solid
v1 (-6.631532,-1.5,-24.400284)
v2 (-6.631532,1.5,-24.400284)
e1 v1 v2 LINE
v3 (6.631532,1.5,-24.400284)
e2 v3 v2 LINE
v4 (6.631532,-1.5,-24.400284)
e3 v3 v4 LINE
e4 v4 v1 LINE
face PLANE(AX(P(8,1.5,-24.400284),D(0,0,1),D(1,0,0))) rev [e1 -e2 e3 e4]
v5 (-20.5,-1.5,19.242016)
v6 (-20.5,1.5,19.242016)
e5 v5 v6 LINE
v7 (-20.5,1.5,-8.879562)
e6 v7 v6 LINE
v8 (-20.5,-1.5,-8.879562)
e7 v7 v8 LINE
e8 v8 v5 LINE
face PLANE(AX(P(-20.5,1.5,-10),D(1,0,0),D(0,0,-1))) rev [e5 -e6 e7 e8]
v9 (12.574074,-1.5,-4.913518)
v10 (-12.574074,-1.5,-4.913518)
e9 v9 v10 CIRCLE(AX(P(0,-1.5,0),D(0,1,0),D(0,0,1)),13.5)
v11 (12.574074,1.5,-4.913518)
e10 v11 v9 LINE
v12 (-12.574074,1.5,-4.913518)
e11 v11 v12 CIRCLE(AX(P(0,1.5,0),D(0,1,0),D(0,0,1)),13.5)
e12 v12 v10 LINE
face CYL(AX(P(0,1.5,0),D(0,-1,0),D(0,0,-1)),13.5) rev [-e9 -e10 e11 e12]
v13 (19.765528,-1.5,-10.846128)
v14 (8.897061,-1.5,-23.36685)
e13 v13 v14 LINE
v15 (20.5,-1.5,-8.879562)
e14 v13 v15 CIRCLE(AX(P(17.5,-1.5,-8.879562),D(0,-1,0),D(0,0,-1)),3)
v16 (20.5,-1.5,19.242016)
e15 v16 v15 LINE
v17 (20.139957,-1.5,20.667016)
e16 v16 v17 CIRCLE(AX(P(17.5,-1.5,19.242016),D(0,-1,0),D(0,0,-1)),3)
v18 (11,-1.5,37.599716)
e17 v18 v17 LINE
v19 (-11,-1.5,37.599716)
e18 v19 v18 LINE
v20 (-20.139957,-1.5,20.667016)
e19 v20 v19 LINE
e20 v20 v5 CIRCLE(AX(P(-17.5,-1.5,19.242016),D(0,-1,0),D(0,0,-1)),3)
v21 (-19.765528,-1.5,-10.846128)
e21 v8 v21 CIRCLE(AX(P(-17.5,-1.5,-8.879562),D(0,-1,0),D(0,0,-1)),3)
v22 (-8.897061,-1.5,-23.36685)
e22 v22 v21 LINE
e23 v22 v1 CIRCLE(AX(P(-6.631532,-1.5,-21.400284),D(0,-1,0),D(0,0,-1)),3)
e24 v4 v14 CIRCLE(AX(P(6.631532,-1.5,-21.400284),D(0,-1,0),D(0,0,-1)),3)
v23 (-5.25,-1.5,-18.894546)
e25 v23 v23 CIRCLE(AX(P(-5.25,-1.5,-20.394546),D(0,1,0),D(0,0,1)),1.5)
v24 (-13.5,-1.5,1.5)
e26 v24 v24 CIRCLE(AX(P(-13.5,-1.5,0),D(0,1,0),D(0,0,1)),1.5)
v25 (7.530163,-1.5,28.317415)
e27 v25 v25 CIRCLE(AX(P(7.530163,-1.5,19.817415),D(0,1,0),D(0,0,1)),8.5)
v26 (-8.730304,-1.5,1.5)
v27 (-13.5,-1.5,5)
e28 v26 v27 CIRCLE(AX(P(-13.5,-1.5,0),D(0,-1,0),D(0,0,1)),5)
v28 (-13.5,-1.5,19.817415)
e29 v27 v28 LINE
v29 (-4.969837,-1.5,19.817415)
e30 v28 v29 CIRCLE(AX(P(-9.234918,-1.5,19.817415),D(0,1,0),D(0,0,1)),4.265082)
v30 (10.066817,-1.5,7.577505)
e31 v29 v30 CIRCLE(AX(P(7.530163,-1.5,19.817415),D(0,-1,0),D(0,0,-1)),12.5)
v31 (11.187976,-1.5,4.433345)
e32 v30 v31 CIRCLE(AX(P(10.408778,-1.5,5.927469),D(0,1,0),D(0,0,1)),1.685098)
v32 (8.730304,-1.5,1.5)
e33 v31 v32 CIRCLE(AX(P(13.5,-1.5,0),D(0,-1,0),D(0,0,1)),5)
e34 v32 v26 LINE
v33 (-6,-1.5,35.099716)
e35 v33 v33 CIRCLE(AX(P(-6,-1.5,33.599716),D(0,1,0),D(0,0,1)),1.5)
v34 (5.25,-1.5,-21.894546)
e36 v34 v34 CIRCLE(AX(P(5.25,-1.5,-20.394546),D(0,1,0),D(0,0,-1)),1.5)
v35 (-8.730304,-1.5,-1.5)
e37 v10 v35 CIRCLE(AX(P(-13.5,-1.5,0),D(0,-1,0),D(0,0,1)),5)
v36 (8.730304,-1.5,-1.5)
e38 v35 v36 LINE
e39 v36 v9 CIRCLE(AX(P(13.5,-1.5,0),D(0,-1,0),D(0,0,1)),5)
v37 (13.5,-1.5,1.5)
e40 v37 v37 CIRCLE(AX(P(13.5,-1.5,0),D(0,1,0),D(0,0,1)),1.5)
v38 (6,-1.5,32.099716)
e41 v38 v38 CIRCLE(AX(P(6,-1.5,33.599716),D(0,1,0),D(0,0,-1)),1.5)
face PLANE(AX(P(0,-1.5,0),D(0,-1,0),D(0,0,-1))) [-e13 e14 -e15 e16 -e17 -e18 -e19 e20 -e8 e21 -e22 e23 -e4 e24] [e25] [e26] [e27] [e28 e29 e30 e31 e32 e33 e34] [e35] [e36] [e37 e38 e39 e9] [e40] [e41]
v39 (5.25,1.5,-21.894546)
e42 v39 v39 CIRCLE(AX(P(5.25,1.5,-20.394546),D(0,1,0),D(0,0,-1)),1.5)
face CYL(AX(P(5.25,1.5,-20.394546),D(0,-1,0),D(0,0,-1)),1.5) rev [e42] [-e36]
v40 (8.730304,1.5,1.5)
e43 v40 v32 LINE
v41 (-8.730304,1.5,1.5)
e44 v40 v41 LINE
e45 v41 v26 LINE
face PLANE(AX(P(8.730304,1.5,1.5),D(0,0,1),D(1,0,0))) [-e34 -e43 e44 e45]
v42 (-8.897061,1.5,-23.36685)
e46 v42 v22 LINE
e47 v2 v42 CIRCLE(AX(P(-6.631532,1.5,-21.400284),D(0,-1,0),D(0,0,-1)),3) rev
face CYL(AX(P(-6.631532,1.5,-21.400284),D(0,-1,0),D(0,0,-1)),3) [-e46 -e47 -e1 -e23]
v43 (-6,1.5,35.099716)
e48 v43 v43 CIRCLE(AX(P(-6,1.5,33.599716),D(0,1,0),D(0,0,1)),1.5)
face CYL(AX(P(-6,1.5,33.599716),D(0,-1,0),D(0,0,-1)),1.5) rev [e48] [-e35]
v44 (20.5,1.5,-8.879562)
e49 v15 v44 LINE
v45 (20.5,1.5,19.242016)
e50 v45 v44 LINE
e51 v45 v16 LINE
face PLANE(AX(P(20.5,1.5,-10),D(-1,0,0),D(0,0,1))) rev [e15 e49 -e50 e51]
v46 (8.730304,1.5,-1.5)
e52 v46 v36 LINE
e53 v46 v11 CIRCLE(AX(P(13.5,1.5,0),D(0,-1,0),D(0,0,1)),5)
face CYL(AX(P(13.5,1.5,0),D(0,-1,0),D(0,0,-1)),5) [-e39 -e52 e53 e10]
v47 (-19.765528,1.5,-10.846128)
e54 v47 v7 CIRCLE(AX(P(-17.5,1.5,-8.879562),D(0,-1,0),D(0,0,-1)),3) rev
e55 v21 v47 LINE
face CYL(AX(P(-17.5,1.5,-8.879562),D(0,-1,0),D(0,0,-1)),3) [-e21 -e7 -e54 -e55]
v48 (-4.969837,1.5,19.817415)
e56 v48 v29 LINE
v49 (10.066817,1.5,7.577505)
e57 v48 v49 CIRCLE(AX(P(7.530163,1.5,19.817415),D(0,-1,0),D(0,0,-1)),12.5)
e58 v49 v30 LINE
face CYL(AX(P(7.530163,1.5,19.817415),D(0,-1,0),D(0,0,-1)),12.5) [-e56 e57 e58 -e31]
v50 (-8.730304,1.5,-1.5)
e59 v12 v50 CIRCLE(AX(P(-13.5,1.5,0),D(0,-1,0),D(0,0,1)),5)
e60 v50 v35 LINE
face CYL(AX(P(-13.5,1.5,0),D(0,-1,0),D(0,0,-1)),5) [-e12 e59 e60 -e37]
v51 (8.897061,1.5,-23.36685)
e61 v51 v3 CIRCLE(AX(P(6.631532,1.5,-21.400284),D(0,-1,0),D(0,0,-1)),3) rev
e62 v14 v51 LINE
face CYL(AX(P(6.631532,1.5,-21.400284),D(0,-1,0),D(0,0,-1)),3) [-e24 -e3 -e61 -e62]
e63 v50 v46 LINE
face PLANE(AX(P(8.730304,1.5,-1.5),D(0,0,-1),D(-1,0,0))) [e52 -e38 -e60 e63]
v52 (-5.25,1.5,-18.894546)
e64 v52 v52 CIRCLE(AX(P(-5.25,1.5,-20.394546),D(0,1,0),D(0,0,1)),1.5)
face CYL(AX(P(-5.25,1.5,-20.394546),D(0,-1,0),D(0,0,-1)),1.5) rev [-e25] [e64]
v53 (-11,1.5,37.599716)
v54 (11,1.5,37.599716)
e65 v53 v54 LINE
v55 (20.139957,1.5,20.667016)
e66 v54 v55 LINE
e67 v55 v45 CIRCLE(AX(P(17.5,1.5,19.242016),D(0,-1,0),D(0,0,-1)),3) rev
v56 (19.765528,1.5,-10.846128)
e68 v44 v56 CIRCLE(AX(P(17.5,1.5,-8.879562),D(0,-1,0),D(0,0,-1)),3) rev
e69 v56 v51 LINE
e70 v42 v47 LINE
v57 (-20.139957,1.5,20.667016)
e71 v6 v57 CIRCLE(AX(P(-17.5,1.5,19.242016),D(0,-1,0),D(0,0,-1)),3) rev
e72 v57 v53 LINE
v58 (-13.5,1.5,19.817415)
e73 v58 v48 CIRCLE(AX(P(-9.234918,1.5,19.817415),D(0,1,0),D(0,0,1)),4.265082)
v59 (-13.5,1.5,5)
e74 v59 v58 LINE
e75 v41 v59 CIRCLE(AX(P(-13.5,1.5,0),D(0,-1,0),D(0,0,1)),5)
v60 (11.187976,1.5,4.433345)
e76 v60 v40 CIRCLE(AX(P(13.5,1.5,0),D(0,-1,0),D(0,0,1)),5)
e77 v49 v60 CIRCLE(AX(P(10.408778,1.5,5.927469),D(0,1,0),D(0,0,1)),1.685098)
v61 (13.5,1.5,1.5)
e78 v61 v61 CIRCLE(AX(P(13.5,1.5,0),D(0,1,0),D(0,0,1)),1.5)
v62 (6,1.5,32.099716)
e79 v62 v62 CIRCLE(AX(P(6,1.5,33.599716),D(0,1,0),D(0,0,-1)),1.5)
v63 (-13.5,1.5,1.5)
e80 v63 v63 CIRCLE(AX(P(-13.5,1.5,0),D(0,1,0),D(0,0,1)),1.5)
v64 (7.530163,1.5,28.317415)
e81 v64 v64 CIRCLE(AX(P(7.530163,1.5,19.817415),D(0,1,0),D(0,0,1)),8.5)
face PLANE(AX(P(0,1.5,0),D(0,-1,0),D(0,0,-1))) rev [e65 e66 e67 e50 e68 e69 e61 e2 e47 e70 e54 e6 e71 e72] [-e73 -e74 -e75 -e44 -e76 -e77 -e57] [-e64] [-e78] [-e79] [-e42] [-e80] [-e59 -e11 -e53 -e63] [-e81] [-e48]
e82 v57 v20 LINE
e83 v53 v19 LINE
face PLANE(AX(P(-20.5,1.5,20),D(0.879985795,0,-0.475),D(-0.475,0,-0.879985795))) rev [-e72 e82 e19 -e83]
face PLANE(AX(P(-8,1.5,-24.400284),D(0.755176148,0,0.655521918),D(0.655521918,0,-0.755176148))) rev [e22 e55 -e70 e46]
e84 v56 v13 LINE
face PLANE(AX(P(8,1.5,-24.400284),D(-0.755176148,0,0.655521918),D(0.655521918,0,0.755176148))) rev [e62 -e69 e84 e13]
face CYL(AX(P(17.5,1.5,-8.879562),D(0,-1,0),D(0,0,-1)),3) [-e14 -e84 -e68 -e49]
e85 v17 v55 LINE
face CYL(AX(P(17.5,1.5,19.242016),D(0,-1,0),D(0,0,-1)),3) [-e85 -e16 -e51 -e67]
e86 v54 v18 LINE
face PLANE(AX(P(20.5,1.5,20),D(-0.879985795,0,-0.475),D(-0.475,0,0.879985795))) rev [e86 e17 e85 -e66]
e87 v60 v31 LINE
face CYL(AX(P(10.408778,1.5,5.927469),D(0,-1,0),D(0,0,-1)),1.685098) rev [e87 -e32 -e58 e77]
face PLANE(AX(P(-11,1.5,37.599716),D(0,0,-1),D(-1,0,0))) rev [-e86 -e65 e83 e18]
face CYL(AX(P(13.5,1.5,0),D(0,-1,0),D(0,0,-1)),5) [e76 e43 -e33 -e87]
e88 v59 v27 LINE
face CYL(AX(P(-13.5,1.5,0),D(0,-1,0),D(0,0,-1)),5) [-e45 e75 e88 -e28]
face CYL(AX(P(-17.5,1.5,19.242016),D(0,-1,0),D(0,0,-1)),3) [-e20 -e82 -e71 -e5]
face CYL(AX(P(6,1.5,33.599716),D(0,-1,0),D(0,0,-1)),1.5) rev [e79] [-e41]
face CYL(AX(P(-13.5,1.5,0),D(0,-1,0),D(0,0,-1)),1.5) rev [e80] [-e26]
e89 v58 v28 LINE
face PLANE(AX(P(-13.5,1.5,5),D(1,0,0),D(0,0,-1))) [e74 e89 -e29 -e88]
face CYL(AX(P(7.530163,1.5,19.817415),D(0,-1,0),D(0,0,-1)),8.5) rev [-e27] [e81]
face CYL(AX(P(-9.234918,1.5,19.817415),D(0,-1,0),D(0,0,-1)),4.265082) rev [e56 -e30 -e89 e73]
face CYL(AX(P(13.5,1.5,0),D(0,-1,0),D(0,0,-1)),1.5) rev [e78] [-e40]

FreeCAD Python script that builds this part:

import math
import FreeCAD as App
import Part
import Sketcher
from FreeCAD import Vector


def edges_at(feature, points):
    """Names of the edges that pass closest to the given points."""
    edges = feature.Shape.Edges
    near = lambda p: min(range(len(edges)), key=lambda i: edges[i].distToShape(Part.Vertex(*p))[0])
    return sorted({f"Edge{near(p) + 1}" for p in points})

doc = App.newDocument("Part")
body = doc.addObject("PartDesign::Body", "Body")

sketch1 = doc.addObject("Sketcher::SketchObject", "Sketch")
body.addObject(sketch1)
sketch1.AttachmentSupport = (doc.XZ_Plane, [""])
sketch1.MapMode = "FlatFace"
sketch1.addGeometry([
    Part.LineSegment(Vector(8, -24.4, 0), Vector(-8, -24.4, 0)),
    Part.LineSegment(Vector(-8, -24.4, 0), Vector(-20.5, -10, 0)),
    Part.LineSegment(Vector(-20.5, -10, 0), Vector(-20.5, 20, 0)),
    Part.LineSegment(Vector(-20.5, 20, 0), Vector(-11, 37.6, 0)),
    Part.LineSegment(Vector(-11, 37.6, 0), Vector(11, 37.6, 0)),
    Part.LineSegment(Vector(11, 37.6, 0), Vector(20.5, 20, 0)),
    Part.LineSegment(Vector(20.5, 20, 0), Vector(20.5, -10, 0)),
    Part.LineSegment(Vector(20.5, -10, 0), Vector(8, -24.4, 0)),
    Part.Circle(Vector(-6, 33.6, 0), Vector(0, 0, 1), 1.5),
    Part.LineSegment(Vector(-13.5, 19.8, 0), Vector(-13.5, 5, 0)),
    Part.ArcOfCircle(Part.Circle(Vector(-13.5, 0, 0), Vector(0, 0, 1), 5), math.radians(17), math.radians(90)),
    Part.LineSegment(Vector(-8.7, 1.5, 0), Vector(8.7, 1.5, 0)),
    Part.ArcOfCircle(Part.Circle(Vector(13.5, 0, 0), Vector(0, 0, 1), 5), math.radians(118), math.radians(163)),
    Part.ArcOfCircle(Part.Circle(Vector(10.4, 5.9, 0), Vector(0, 0, 1), 1.7), math.radians(-62), math.radians(102)),
    Part.ArcOfCircle(Part.Circle(Vector(7.5, 19.8, 0), Vector(0, 0, 1), 12.5), math.radians(180), math.radians(282)),
    Part.ArcOfCircle(Part.Circle(Vector(-9.2, 19.8, 0), Vector(0, 0, 1), 4.3), math.radians(0), math.radians(180)),
    Part.Circle(Vector(6, 33.6, 0), Vector(0, 0, 1), 1.5),
    Part.Circle(Vector(7.5, 19.8, 0), Vector(0, 0, 1), 8.5),
    Part.Circle(Vector(-13.5, 0, 0), Vector(0, 0, 1), 1.5),
    Part.ArcOfCircle(Part.Circle(Vector(13.5, 0, 0), Vector(0, 0, 1), 5), math.radians(-163), math.radians(-101)),
    Part.LineSegment(Vector(8.7, -1.5, 0), Vector(-8.7, -1.5, 0)),
    Part.ArcOfCircle(Part.Circle(Vector(-13.5, 0, 0), Vector(0, 0, 1), 5), math.radians(-79), math.radians(-17)),
    Part.ArcOfCircle(Part.Circle(Vector(0, 0, 0), Vector(0, 0, 1), 13.5), math.radians(-159), math.radians(-21)),
    Part.Circle(Vector(-5.2, -20.4, 0), Vector(0, 0, 1), 1.5),
    Part.Circle(Vector(13.5, 0, 0), Vector(0, 0, 1), 1.5),
    Part.Circle(Vector(5.2, -20.4, 0), Vector(0, 0, 1), 1.5),
], False)
sketch1.addConstraint([
    Sketcher.Constraint("Coincident", 0, 2, 1, 1),
    Sketcher.Constraint("Coincident", 1, 2, 2, 1),
    Sketcher.Constraint("Coincident", 2, 2, 3, 1),
    Sketcher.Constraint("Coincident", 3, 2, 4, 1),
    Sketcher.Constraint("Coincident", 4, 2, 5, 1),
    Sketcher.Constraint("Coincident", 5, 2, 6, 1),
    Sketcher.Constraint("Coincident", 6, 2, 7, 1),
    Sketcher.Constraint("Coincident", 7, 2, 0, 1),
    Sketcher.Constraint("Coincident", 9, 2, 10, 2),
    Sketcher.Constraint("Coincident", 10, 1, 11, 1),
    Sketcher.Constraint("Coincident", 11, 2, 12, 2),
    Sketcher.Constraint("Tangent", 12, 1, 13, 1),
    Sketcher.Constraint("Tangent", 13, 2, 14, 2),
    Sketcher.Constraint("Tangent", 14, 1, 15, 1),
    Sketcher.Constraint("Tangent", 15, 2, 9, 1),
    Sketcher.Constraint("Coincident", 19, 1, 20, 1),
    Sketcher.Constraint("Coincident", 20, 2, 21, 2),
    Sketcher.Constraint("Coincident", 21, 1, 22, 1),
    Sketcher.Constraint("Coincident", 22, 2, 19, 2),
    Sketcher.Constraint("Horizontal", 0),
    Sketcher.Constraint("Vertical", 2),
    Sketcher.Constraint("Horizontal", 4),
    Sketcher.Constraint("Vertical", 6),
    Sketcher.Constraint("Vertical", 9),
    Sketcher.Constraint("Horizontal", 11),
    Sketcher.Constraint("Horizontal", 20),
    Sketcher.Constraint("Coincident", 22, 3, -1, 1),
    Sketcher.Constraint("Coincident", 17, 3, 14, 3),
    Sketcher.Constraint("Coincident", 18, 3, 10, 3),
    Sketcher.Constraint("Coincident", 19, 3, 12, 3),
    Sketcher.Constraint("Coincident", 21, 3, 10, 3),
    Sketcher.Constraint("Coincident", 24, 3, 12, 3),
    Sketcher.Constraint("Equal", 10, 12),
    Sketcher.Constraint("Equal", 8, 16),
    Sketcher.Constraint("Equal", 16, 18),
    Sketcher.Constraint("Equal", 12, 19),
    Sketcher.Constraint("Equal", 19, 21),
    Sketcher.Constraint("Equal", 18, 23),
    Sketcher.Constraint("Equal", 23, 24),
    Sketcher.Constraint("Equal", 24, 25),
    Sketcher.Constraint("Symmetric", 10, 3, 12, 3, -1, 1),
    Sketcher.Constraint("Symmetric", 8, 3, 16, 3, -2),
    Sketcher.Constraint("Symmetric", 23, 3, 25, 3, -2),
    Sketcher.Constraint("Symmetric", 2, 2, 5, 2, -2),
    Sketcher.Constraint("Symmetric", 11, 2, 19, 1, -1),
    Sketcher.Constraint("Horizontal", 14, 3, 15, 3),
    Sketcher.Constraint("Horizontal", 1, 2, 6, 2),
    Sketcher.Constraint("Vertical", 21, 3, 9, 2),
    Sketcher.Constraint("Equal", 3, 5),
    Sketcher.Constraint("Equal", 1, 7),
    Sketcher.Constraint("Diameter", 8, 3.0),
    Sketcher.Constraint("Diameter", 17, 17.0),
    Sketcher.Constraint("Radius", 10, 5.0),
    Sketcher.Constraint("Radius", 14, 12.5),
    Sketcher.Constraint("Radius", 22, 13.5),
    Sketcher.Constraint("DistanceX", 0, 2, 0, 1, 16.0),
    Sketcher.Constraint("DistanceX", 4, 1, 4, 2, 22.0),
    Sketcher.Constraint("DistanceY", 2, 1, 2, 2, 30.0),
    Sketcher.Constraint("Distance", 3, 20.0),
    Sketcher.Constraint("DistanceX", 8, 3, -1, 1, 6.0),
    Sketcher.Constraint("DistanceY", 1, 2, -1, 1, 10.0),
    Sketcher.Constraint("DistanceX", 10, 3, 12, 3, 27.0),
    Sketcher.Constraint("DistanceX", 1, 2, 18, 3, 7.0),
    Sketcher.Constraint("DistanceY", 8, 3, 3, 2, 4.0),
    Sketcher.Constraint("DistanceY", 19, 1, 11, 2, 3.0),
    Sketcher.Constraint("Radius", 13, 1.685098),
    Sketcher.Constraint("DistanceX", 23, 3, 25, 3, 10.5),
    Sketcher.Constraint("Radius", 15, 4.265082),
    Sketcher.Constraint("DistanceY", 14, 3, 8, 3, 13.782301),
    Sketcher.Constraint("DistanceY", 0, 2, 23, 3, 4.005738),
    Sketcher.Constraint("Distance", 1, 19.068775),
])
pad1 = doc.addObject("PartDesign::Pad", "Pad")
body.addObject(pad1)
pad1.Profile = sketch1
pad1.Length = 3
pad1.Midplane = True
doc.recompute()

fillet = doc.addObject("PartDesign::Fillet", "Fillet")
body.addObject(fillet)
fillet.Base = (pad1, edges_at(pad1, [
    (-20.5, 0, 20),
    (-20.5, 0, -10),
    (-8, 0, -24.4),
    (8, 0, -24.4),
    (20.5, 0, -10),
    (20.5, 0, 20),
]))
fillet.Radius = 3

doc.recompute()
